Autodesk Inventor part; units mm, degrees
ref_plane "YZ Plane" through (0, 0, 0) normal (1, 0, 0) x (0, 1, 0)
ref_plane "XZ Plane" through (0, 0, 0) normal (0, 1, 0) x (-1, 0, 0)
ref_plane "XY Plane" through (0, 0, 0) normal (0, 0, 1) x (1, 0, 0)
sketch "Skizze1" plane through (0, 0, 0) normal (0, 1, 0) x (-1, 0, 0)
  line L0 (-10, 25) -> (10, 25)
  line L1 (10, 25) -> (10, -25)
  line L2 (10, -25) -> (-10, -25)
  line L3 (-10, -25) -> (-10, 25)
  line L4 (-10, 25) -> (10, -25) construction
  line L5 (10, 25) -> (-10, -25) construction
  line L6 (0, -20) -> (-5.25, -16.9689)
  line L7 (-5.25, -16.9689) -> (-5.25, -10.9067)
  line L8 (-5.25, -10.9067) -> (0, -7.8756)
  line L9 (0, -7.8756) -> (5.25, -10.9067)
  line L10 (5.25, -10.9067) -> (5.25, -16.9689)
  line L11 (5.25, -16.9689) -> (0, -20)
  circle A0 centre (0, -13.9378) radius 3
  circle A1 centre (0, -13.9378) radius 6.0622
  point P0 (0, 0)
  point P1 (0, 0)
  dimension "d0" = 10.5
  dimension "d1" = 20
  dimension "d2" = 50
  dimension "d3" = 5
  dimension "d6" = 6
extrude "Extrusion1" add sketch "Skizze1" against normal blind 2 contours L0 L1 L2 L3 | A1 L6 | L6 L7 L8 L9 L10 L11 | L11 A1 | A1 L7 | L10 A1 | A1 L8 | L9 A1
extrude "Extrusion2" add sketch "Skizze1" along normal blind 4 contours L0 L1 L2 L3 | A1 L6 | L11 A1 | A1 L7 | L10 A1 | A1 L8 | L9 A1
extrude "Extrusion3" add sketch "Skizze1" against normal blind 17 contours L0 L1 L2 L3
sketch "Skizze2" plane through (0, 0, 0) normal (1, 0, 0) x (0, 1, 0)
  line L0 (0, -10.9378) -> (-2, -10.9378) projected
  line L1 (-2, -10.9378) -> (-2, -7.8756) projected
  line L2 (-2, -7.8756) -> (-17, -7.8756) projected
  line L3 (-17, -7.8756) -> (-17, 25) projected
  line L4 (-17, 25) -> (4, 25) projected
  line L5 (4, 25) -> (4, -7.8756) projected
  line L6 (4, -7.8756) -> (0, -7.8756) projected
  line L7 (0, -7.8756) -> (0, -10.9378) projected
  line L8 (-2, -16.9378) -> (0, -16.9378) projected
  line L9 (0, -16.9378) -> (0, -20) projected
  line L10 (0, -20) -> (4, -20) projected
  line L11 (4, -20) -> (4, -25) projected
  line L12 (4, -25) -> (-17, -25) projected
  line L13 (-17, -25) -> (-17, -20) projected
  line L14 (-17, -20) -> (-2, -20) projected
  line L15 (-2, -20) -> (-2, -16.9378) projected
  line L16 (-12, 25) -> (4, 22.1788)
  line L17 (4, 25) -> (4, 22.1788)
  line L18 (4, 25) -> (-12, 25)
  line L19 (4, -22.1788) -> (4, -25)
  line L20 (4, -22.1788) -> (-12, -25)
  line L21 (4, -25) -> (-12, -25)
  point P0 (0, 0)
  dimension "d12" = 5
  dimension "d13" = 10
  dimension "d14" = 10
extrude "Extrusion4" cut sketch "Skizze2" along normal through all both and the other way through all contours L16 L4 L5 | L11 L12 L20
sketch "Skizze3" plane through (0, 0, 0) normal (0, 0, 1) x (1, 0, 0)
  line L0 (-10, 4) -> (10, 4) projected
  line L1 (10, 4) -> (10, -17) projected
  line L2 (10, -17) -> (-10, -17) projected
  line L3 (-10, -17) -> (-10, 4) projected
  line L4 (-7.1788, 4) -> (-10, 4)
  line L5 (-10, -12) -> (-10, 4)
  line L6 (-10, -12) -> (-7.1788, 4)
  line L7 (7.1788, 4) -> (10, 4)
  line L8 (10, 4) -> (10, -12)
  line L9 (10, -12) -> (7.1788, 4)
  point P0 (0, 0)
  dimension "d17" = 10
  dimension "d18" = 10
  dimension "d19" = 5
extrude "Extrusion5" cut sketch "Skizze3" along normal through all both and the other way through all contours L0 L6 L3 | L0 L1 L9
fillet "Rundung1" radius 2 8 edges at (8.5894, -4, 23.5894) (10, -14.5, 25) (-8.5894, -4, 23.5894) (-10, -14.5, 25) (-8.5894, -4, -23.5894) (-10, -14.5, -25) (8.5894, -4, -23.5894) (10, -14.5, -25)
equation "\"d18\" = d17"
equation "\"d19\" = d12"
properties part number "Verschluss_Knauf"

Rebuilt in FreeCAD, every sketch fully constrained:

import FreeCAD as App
import Part
import Sketcher
Q = App.Units.Quantity


def edges_at(feature, points):
    """Names of the edges that pass closest to the given points."""
    edges = feature.Shape.Edges
    near = lambda p: min(range(len(edges)), key=lambda i: edges[i].distToShape(Part.Vertex(*p))[0])
    return sorted({f"Edge{near(p) + 1}" for p in points})

doc = App.newDocument("Part")
body = doc.addObject("PartDesign::Body", "Body")

sketch1 = body.newObject("Sketcher::SketchObject", "Sketch")
sketch1.AttachmentSupport = (doc.getObject("XZ_Plane"), [""])
sketch1.MapMode = "FlatFace"
sketch1.addGeometry(Part.LineSegment(App.Vector(-10, 25, 0), App.Vector(10, 25, 0)), False)
sketch1.addGeometry(Part.LineSegment(App.Vector(10, 25, 0), App.Vector(10, -25, 0)), False)
sketch1.addGeometry(Part.LineSegment(App.Vector(10, -25, 0), App.Vector(-10, -25, 0)), False)
sketch1.addGeometry(Part.LineSegment(App.Vector(-10, -25, 0), App.Vector(-10, 25, 0)), False)
sketch1.addGeometry(Part.Circle(App.Vector(0, -13.9378, 0), App.Vector(0, 0, 1), 3), False)
sketch1.addConstraint(Sketcher.Constraint("Coincident", 0, 2, 1, 1))
sketch1.addConstraint(Sketcher.Constraint("Coincident", 1, 2, 2, 1))
sketch1.addConstraint(Sketcher.Constraint("Coincident", 2, 2, 3, 1))
sketch1.addConstraint(Sketcher.Constraint("Coincident", 3, 2, 0, 1))
sketch1.addConstraint(Sketcher.Constraint("Horizontal", 0))
sketch1.addConstraint(Sketcher.Constraint("Vertical", 1))
sketch1.addConstraint(Sketcher.Constraint("Horizontal", 2))
sketch1.addConstraint(Sketcher.Constraint("Vertical", 3))
sketch1.addConstraint(Sketcher.Constraint("Symmetric", 0, 2, 2, 2, -1, 1))
sketch1.addConstraint(Sketcher.Constraint("PointOnObject", 4, 3, -2))
sketch1.addConstraint(Sketcher.Constraint("Diameter", 4, Q("6 mm")))
sketch1.addConstraint(Sketcher.Constraint("DistanceX", 0, 1, 0, 2, Q("20 mm")))
sketch1.addConstraint(Sketcher.Constraint("DistanceY", 1, 2, 1, 1, Q("50 mm")))
sketch1.addConstraint(Sketcher.Constraint("DistanceY", 4, 3, -1, 1, Q("13.9378 mm")))
pad1 = body.newObject("PartDesign::Pad", "Pad")
pad1.Profile = sketch1
pad1.Length = 2

sketch2 = body.newObject("Sketcher::SketchObject", "Sketch001")
sketch2.AttachmentSupport = (doc.getObject("XZ_Plane"), [""])
sketch2.MapMode = "FlatFace"
sketch2.addGeometry(Part.LineSegment(App.Vector(-10, 25, 0), App.Vector(10, 25, 0)), False)
sketch2.addGeometry(Part.LineSegment(App.Vector(10, 25, 0), App.Vector(10, -25, 0)), False)
sketch2.addGeometry(Part.LineSegment(App.Vector(10, -25, 0), App.Vector(-10, -25, 0)), False)
sketch2.addGeometry(Part.LineSegment(App.Vector(-10, -25, 0), App.Vector(-10, 25, 0)), False)
sketch2.addGeometry(Part.LineSegment(App.Vector(-5.25, -16.9689, 0), App.Vector(0, -20, 0)), False)
sketch2.addGeometry(Part.LineSegment(App.Vector(0, -20, 0), App.Vector(5.25, -16.9689, 0)), False)
sketch2.addGeometry(Part.LineSegment(App.Vector(5.25, -16.9689, 0), App.Vector(5.25, -10.9067, 0)), False)
sketch2.addGeometry(Part.LineSegment(App.Vector(5.25, -10.9067, 0), App.Vector(0, -7.8756, 0)), False)
sketch2.addGeometry(Part.LineSegment(App.Vector(0, -7.8756, 0), App.Vector(-5.25, -10.9067, 0)), False)
sketch2.addGeometry(Part.LineSegment(App.Vector(-5.25, -10.9067, 0), App.Vector(-5.25, -16.9689, 0)), False)
sketch2.addConstraint(Sketcher.Constraint("Coincident", 0, 2, 1, 1))
sketch2.addConstraint(Sketcher.Constraint("Coincident", 1, 2, 2, 1))
sketch2.addConstraint(Sketcher.Constraint("Coincident", 2, 2, 3, 1))
sketch2.addConstraint(Sketcher.Constraint("Coincident", 3, 2, 0, 1))
sketch2.addConstraint(Sketcher.Constraint("Coincident", 4, 2, 5, 1))
sketch2.addConstraint(Sketcher.Constraint("Coincident", 5, 2, 6, 1))
sketch2.addConstraint(Sketcher.Constraint("Coincident", 6, 2, 7, 1))
sketch2.addConstraint(Sketcher.Constraint("Coincident", 7, 2, 8, 1))
sketch2.addConstraint(Sketcher.Constraint("Coincident", 8, 2, 9, 1))
sketch2.addConstraint(Sketcher.Constraint("Coincident", 9, 2, 4, 1))
sketch2.addConstraint(Sketcher.Constraint("Horizontal", 0))
sketch2.addConstraint(Sketcher.Constraint("Vertical", 1))
sketch2.addConstraint(Sketcher.Constraint("Horizontal", 2))
sketch2.addConstraint(Sketcher.Constraint("Vertical", 3))
sketch2.addConstraint(Sketcher.Constraint("Vertical", 6))
sketch2.addConstraint(Sketcher.Constraint("Vertical", 9))
sketch2.addConstraint(Sketcher.Constraint("Symmetric", 0, 2, 2, 2, -1, 1))
sketch2.addConstraint(Sketcher.Constraint("Symmetric", 6, 2, 8, 2, -2))
sketch2.addConstraint(Sketcher.Constraint("PointOnObject", 4, 2, -2))
sketch2.addConstraint(Sketcher.Constraint("PointOnObject", 7, 2, -2))
sketch2.addConstraint(Sketcher.Constraint("Parallel", 4, 7))
sketch2.addConstraint(Sketcher.Constraint("Parallel", 5, 8))
sketch2.addConstraint(Sketcher.Constraint("DistanceX", 0, 1, 0, 2, Q("20 mm")))
sketch2.addConstraint(Sketcher.Constraint("DistanceY", 1, 2, 1, 1, Q("50 mm")))
sketch2.addConstraint(Sketcher.Constraint("DistanceY", 4, 2, -1, 1, Q("20 mm")))
sketch2.addConstraint(Sketcher.Constraint("DistanceX", 8, 2, 6, 2, Q("10.5 mm")))
sketch2.addConstraint(Sketcher.Constraint("Angle", 4, Q("-30 deg")))
sketch2.addConstraint(Sketcher.Constraint("DistanceY", 6, 1, 6, 2, Q("6.0622 mm")))
pad2 = body.newObject("PartDesign::Pad", "Pad001")
pad2.Profile = sketch2
pad2.Length = 4
pad2.Reversed = True

sketch3 = body.newObject("Sketcher::SketchObject", "Sketch002")
sketch3.AttachmentSupport = (doc.getObject("XZ_Plane"), [""])
sketch3.MapMode = "FlatFace"
sketch3.addGeometry(Part.LineSegment(App.Vector(-10, 25, 0), App.Vector(10, 25, 0)), False)
sketch3.addGeometry(Part.LineSegment(App.Vector(10, 25, 0), App.Vector(10, -25, 0)), False)
sketch3.addGeometry(Part.LineSegment(App.Vector(10, -25, 0), App.Vector(-10, -25, 0)), False)
sketch3.addGeometry(Part.LineSegment(App.Vector(-10, -25, 0), App.Vector(-10, 25, 0)), False)
sketch3.addGeometry(Part.Circle(App.Vector(0, -13.9378, 0), App.Vector(0, 0, 1), 6.0622), False)
sketch3.addConstraint(Sketcher.Constraint("Coincident", 0, 2, 1, 1))
sketch3.addConstraint(Sketcher.Constraint("Coincident", 1, 2, 2, 1))
sketch3.addConstraint(Sketcher.Constraint("Coincident", 2, 2, 3, 1))
sketch3.addConstraint(Sketcher.Constraint("Coincident", 3, 2, 0, 1))
sketch3.addConstraint(Sketcher.Constraint("Horizontal", 0))
sketch3.addConstraint(Sketcher.Constraint("Vertical", 1))
sketch3.addConstraint(Sketcher.Constraint("Horizontal", 2))
sketch3.addConstraint(Sketcher.Constraint("Vertical", 3))
sketch3.addConstraint(Sketcher.Constraint("Symmetric", 0, 2, 2, 2, -1, 1))
sketch3.addConstraint(Sketcher.Constraint("PointOnObject", 4, 3, -2))
sketch3.addConstraint(Sketcher.Constraint("DistanceX", 0, 1, 0, 2, Q("20 mm")))
sketch3.addConstraint(Sketcher.Constraint("DistanceY", 1, 2, 1, 1, Q("50 mm")))
sketch3.addConstraint(Sketcher.Constraint("Diameter", 4, Q("12.1244 mm")))
sketch3.addConstraint(Sketcher.Constraint("DistanceY", 4, 3, -1, 1, Q("13.9378 mm")))
pad3 = body.newObject("PartDesign::Pad", "Pad002")
pad3.Profile = sketch3
pad3.Length = 17

sketch4 = body.newObject("Sketcher::SketchObject", "Sketch003")
sketch4.AttachmentSupport = (doc.getObject("YZ_Plane"), [""])
sketch4.MapMode = "FlatFace"
sketch4.addGeometry(Part.LineSegment(App.Vector(-12, 25, 0), App.Vector(4, 22.1788, 0)), False)
sketch4.addGeometry(Part.LineSegment(App.Vector(4, 22.1788, 0), App.Vector(4, 25, 0)), False)
sketch4.addGeometry(Part.LineSegment(App.Vector(4, 25, 0), App.Vector(-12, 25, 0)), False)
sketch4.addGeometry(Part.LineSegment(App.Vector(4, -25, 0), App.Vector(4, -22.1788, 0)), False)
sketch4.addGeometry(Part.LineSegment(App.Vector(4, -22.1788, 0), App.Vector(-12, -25, 0)), False)
sketch4.addGeometry(Part.LineSegment(App.Vector(-12, -25, 0), App.Vector(4, -25, 0)), False)
sketch4.addConstraint(Sketcher.Constraint("Coincident", 0, 2, 1, 1))
sketch4.addConstraint(Sketcher.Constraint("Coincident", 1, 2, 2, 1))
sketch4.addConstraint(Sketcher.Constraint("Coincident", 2, 2, 0, 1))
sketch4.addConstraint(Sketcher.Constraint("Coincident", 3, 2, 4, 1))
sketch4.addConstraint(Sketcher.Constraint("Coincident", 4, 2, 5, 1))
sketch4.addConstraint(Sketcher.Constraint("Coincident", 5, 2, 3, 1))
sketch4.addConstraint(Sketcher.Constraint("Vertical", 1))
sketch4.addConstraint(Sketcher.Constraint("Horizontal", 2))
sketch4.addConstraint(Sketcher.Constraint("Vertical", 3))
sketch4.addConstraint(Sketcher.Constraint("Horizontal", 5))
sketch4.addConstraint(Sketcher.Constraint("Symmetric", 0, 2, 3, 2, -1))
sketch4.addConstraint(Sketcher.Constraint("Symmetric", 2, 2, 4, 2, -1))
sketch4.addConstraint(Sketcher.Constraint("Angle", 0, Q("-10 deg")))
sketch4.addConstraint(Sketcher.Constraint("DistanceX", 2, 2, 2, 1, Q("16 mm")))
sketch4.addConstraint(Sketcher.Constraint("DistanceX", -1, 1, 0, 2, Q("4 mm")))
sketch4.addConstraint(Sketcher.Constraint("DistanceY", -1, 1, 1, 2, Q("25 mm")))
pocket1 = body.newObject("PartDesign::Pocket", "Pocket")
pocket1.Profile = sketch4
pocket1.Type = "ThroughAll"
pocket1.Midplane = True

sketch5 = body.newObject("Sketcher::SketchObject", "Sketch004")
sketch5.AttachmentSupport = (doc.getObject("XY_Plane"), [""])
sketch5.MapMode = "FlatFace"
sketch5.addGeometry(Part.LineSegment(App.Vector(-7.1788, 4, 0), App.Vector(-10, 4, 0)), False)
sketch5.addGeometry(Part.LineSegment(App.Vector(-10, 4, 0), App.Vector(-10, -12, 0)), False)
sketch5.addGeometry(Part.LineSegment(App.Vector(-10, -12, 0), App.Vector(-7.1788, 4, 0)), False)
sketch5.addGeometry(Part.LineSegment(App.Vector(10, 4, 0), App.Vector(7.1788, 4, 0)), False)
sketch5.addGeometry(Part.LineSegment(App.Vector(7.1788, 4, 0), App.Vector(10, -12, 0)), False)
sketch5.addGeometry(Part.LineSegment(App.Vector(10, -12, 0), App.Vector(10, 4, 0)), False)
sketch5.addConstraint(Sketcher.Constraint("Coincident", 0, 2, 1, 1))
sketch5.addConstraint(Sketcher.Constraint("Coincident", 1, 2, 2, 1))
sketch5.addConstraint(Sketcher.Constraint("Coincident", 2, 2, 0, 1))
sketch5.addConstraint(Sketcher.Constraint("Coincident", 3, 2, 4, 1))
sketch5.addConstraint(Sketcher.Constraint("Coincident", 4, 2, 5, 1))
sketch5.addConstraint(Sketcher.Constraint("Coincident", 5, 2, 3, 1))
sketch5.addConstraint(Sketcher.Constraint("Horizontal", 0))
sketch5.addConstraint(Sketcher.Constraint("Vertical", 1))
sketch5.addConstraint(Sketcher.Constraint("Horizontal", 3))
sketch5.addConstraint(Sketcher.Constraint("Vertical", 5))
sketch5.addConstraint(Sketcher.Constraint("Symmetric", 2, 2, 3, 2, -2))
sketch5.addConstraint(Sketcher.Constraint("Symmetric", 1, 2, 4, 2, -2))
sketch5.addConstraint(Sketcher.Constraint("DistanceX", 0, 2, -1, 1, Q("10 mm")))
sketch5.addConstraint(Sketcher.Constraint("DistanceY", 1, 2, 1, 1, Q("16 mm")))
sketch5.addConstraint(Sketcher.Constraint("Angle", 2, Q("80 deg")))
sketch5.addConstraint(Sketcher.Constraint("DistanceY", -1, 1, 0, 2, Q("4 mm")))
pocket2 = body.newObject("PartDesign::Pocket", "Pocket001")
pocket2.Profile = sketch5
pocket2.Type = "ThroughAll"
pocket2.Midplane = True
doc.recompute()

fillet = body.newObject("PartDesign::Fillet", "Fillet")
fillet.Base = (pocket2, edges_at(pocket2, [
    (8.589, -4, 23.589),
    (10, -14.5, 25),
    (-8.589, -4, 23.589),
    (-10, -14.5, 25),
    (-8.589, -4, -23.589),
    (-10, -14.5, -25),
    (8.589, -4, -23.589),
    (10, -14.5, -25),
]))
fillet.Radius = 2

doc.recompute()
